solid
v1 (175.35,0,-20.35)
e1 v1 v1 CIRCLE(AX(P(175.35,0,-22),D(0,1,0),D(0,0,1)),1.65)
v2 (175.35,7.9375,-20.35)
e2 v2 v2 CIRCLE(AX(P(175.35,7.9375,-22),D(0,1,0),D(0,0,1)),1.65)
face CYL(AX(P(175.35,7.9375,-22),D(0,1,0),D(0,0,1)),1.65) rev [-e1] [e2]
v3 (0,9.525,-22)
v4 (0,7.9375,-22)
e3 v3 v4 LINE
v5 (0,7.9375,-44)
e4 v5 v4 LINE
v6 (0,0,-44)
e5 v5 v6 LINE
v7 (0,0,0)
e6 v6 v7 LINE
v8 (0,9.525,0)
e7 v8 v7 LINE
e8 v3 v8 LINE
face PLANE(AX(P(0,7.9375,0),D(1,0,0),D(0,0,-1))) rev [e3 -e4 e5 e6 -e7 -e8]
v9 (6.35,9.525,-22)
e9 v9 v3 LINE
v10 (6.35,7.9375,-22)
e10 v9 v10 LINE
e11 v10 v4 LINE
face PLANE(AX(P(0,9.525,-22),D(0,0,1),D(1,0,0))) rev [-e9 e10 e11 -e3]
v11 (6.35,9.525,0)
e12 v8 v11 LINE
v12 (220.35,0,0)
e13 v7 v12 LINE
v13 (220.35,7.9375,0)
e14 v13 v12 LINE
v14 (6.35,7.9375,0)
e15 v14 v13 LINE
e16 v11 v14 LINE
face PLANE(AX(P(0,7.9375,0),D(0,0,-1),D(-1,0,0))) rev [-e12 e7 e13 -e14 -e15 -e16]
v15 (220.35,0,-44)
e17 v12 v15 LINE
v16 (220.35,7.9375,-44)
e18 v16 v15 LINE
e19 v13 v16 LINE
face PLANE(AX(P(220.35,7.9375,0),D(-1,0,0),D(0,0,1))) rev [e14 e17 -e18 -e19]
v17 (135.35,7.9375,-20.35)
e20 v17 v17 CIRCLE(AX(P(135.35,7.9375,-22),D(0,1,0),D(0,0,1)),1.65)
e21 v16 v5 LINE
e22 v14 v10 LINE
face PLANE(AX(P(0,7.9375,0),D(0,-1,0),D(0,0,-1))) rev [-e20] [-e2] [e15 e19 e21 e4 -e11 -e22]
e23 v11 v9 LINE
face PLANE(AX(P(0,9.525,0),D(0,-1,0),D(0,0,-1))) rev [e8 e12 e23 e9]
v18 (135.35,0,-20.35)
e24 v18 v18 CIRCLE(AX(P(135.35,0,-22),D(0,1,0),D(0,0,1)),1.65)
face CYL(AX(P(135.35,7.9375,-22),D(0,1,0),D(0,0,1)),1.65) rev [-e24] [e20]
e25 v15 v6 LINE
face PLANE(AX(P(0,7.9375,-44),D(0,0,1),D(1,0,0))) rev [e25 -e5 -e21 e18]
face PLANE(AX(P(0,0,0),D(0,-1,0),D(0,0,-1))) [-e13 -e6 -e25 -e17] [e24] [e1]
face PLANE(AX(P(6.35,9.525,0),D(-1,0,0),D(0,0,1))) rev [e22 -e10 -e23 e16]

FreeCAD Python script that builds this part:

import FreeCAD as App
import Part
import Sketcher


def add_polygon(sketch, points):
    """Adds a closed chain of lines whose ends are joined by coincident constraints."""
    first, n = sketch.GeometryCount, len(points)
    for a, b in zip(points, points[1:] + points[:1]):
        sketch.addGeometry(Part.LineSegment(App.Vector(*a, 0), App.Vector(*b, 0)), False)
    for i in range(n):
        sketch.addConstraint(Sketcher.Constraint("Coincident", first + i, 2, first + (i + 1) % n, 1))

doc = App.newDocument("Part")
body = doc.addObject("PartDesign::Body", "Body")

# Sketch on XZ plane
sketch1 = body.newObject("Sketcher::SketchObject", "Sketch")
sketch1.AttachmentSupport = (doc.getObject("XZ_Plane"), [""])
sketch1.MapMode = "FlatFace"
add_polygon(sketch1, [(0, -44), (0, 0), (220, 0), (220, -44)])  # lines 0-3
sketch1.addConstraint([
    Sketcher.Constraint("Vertical", 0),
    Sketcher.Constraint("Horizontal", 1),
    Sketcher.Constraint("Vertical", 2),
    Sketcher.Constraint("Horizontal", 3),
    Sketcher.Constraint("Coincident", 0, 2, -1, 1),
    Sketcher.Constraint("DistanceY", 0, 1, 0, 2, 44.0),
    Sketcher.Constraint("DistanceX", 1, 1, 1, 2, 220.35),
])
pad1 = body.newObject("PartDesign::Pad", "Pad")
pad1.Profile = sketch1
pad1.Length = 7.9375
pad1.Reversed = True

# Sketch on XZ plane
sketch2 = body.newObject("Sketcher::SketchObject", "Sketch001")
sketch2.AttachmentSupport = (doc.getObject("XZ_Plane"), [""])
sketch2.MapMode = "FlatFace"
sketch2.AttachmentOffset = App.Placement(App.Vector(0, 0, -7.9375), App.Rotation())
add_polygon(sketch2, [(0, -22), (0, 0), (6, 0), (6, -22)])  # lines 0-3
sketch2.addConstraint([
    Sketcher.Constraint("Vertical", 0),
    Sketcher.Constraint("Horizontal", 1),
    Sketcher.Constraint("Vertical", 2),
    Sketcher.Constraint("Horizontal", 3),
    Sketcher.Constraint("Coincident", 0, 2, -1, 1),
    Sketcher.Constraint("DistanceY", 0, 1, 0, 2, 22.0),
    Sketcher.Constraint("DistanceX", 1, 1, 1, 2, 6.35),
])
pad2 = body.newObject("PartDesign::Pad", "Pad001")
pad2.Profile = sketch2
pad2.Length = 1.5875
pad2.Reversed = True

# Sketch on XZ plane
sketch3 = body.newObject("Sketcher::SketchObject", "Sketch002")
sketch3.AttachmentSupport = (doc.getObject("XZ_Plane"), [""])
sketch3.MapMode = "FlatFace"
sketch3.AttachmentOffset = App.Placement(App.Vector(0, 0, -7.9375), App.Rotation())
sketch3.addGeometry([
    Part.Circle(App.Vector(135.3, -22, 0), App.Vector(0, 0, 1), 1.6),
    Part.Circle(App.Vector(175.3, -22, 0), App.Vector(0, 0, 1), 1.6),
], False)
sketch3.addConstraint([
    Sketcher.Constraint("Equal", 0, 1),
    Sketcher.Constraint("Horizontal", 0, 3, 1, 3),
    Sketcher.Constraint("Diameter", 0, 3.3),
    Sketcher.Constraint("DistanceY", 0, 3, -1, 1, 22.0),
    Sketcher.Constraint("DistanceX", 0, 3, 1, 3, 40.0),
    Sketcher.Constraint("DistanceX", -1, 1, 0, 3, 135.35),
])
doc.recompute()
hole = body.newObject("PartDesign::Hole", "Hole")
hole.Profile = sketch3
hole.ThreadType = "None"
hole.Diameter = 3.3
hole.DepthType = "ThroughAll"
hole.Reversed = True

doc.recompute()
